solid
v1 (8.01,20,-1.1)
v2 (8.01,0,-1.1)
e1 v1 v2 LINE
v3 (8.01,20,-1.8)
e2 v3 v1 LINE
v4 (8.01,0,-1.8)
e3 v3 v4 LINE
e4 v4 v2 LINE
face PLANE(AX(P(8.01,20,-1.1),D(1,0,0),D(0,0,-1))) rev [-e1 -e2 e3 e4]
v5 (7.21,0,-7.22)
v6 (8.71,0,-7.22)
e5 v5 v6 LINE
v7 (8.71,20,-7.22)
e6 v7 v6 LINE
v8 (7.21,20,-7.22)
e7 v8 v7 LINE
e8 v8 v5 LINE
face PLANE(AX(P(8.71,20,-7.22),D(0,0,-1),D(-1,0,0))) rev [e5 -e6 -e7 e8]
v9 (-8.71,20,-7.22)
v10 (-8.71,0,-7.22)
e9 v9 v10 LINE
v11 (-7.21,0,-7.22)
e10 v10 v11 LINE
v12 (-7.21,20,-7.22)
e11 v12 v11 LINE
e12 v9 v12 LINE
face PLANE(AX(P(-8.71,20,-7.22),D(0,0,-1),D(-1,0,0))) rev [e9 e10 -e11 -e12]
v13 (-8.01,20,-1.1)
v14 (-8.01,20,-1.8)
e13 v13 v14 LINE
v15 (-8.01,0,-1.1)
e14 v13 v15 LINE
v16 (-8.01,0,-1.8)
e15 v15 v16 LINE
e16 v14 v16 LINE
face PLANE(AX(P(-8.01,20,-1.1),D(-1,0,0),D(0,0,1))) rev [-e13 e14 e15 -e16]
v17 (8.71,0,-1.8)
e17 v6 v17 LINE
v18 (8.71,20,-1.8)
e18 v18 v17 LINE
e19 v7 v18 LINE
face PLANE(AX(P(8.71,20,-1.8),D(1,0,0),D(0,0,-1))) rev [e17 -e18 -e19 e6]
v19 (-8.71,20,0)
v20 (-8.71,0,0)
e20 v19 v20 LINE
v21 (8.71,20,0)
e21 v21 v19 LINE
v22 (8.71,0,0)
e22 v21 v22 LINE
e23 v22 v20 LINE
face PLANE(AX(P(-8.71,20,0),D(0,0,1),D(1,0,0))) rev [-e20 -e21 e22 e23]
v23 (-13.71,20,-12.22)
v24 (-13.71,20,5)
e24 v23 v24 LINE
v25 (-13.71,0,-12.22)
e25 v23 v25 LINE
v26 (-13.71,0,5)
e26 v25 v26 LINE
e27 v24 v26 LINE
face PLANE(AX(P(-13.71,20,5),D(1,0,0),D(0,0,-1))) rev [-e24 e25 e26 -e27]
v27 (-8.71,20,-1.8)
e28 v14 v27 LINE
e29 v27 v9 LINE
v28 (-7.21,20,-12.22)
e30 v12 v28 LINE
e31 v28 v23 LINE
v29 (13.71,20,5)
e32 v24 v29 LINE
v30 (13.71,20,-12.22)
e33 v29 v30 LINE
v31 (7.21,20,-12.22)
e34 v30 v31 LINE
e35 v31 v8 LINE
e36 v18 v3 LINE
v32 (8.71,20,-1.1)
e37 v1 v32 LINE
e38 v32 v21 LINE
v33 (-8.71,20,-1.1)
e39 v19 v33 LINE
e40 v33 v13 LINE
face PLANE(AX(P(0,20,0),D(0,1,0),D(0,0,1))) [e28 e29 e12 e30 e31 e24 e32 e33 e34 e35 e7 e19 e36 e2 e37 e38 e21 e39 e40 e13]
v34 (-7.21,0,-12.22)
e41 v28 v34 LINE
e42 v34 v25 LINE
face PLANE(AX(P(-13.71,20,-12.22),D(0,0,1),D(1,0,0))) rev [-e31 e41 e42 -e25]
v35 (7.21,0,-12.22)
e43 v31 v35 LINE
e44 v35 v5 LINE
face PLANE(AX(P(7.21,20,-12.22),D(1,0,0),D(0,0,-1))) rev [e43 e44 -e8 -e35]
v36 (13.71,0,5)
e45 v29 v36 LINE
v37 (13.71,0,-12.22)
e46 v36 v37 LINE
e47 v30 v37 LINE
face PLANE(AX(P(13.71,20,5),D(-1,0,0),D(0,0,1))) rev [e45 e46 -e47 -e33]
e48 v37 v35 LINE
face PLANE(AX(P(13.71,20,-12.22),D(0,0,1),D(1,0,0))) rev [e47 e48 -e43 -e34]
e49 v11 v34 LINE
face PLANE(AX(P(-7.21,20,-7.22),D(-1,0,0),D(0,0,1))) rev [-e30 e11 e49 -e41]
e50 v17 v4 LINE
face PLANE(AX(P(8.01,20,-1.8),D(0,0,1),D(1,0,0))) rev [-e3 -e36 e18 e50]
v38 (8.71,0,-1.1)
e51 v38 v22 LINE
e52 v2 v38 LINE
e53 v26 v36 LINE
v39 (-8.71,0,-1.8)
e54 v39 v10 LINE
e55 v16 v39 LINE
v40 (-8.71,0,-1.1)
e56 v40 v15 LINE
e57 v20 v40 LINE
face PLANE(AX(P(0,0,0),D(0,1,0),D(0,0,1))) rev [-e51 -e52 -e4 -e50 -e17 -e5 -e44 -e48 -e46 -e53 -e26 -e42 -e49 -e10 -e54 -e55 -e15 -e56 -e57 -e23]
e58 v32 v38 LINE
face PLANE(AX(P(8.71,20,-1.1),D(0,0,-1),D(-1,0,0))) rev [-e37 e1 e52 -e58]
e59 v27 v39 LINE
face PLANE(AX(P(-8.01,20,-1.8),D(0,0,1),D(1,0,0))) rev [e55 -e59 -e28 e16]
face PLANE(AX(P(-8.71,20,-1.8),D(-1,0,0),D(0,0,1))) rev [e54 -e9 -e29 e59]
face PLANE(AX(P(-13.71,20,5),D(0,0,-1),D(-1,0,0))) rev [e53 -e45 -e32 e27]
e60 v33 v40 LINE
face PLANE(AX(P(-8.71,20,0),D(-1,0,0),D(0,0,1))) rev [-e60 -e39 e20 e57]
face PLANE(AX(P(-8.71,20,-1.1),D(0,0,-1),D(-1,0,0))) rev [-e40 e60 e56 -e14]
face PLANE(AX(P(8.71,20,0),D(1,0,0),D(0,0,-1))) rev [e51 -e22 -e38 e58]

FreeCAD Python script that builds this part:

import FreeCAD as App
import Part
import Sketcher
from FreeCAD import Vector
Q = App.Units.Quantity

doc = App.newDocument("Part")
params = doc.addObject("Spreadsheet::Sheet", "Params")
for row, (alias, value) in enumerate([
    ("sketch1_height", "5 mm"),
    ("sketch1_width", "0.7 mm"),
    ("sketch1_width2", "1.5 mm"),
    ("sketch1_width3", "6.5 mm"),
    ("sketch1_height2", "1.1 mm"),
    ("pad1_length", "20 mm"),
], start=1):
    params.set(f"A{row}", alias)
    params.set(f"B{row}", "=" + value)
    params.setAlias(f"B{row}", alias)

body = doc.addObject("PartDesign::Body", "Body")

# Sketch on XZ plane
sketch1 = doc.addObject("Sketcher::SketchObject", "Sketch")
body.addObject(sketch1)
sketch1.AttachmentSupport = (doc.XZ_Plane, [""])
sketch1.MapMode = "FlatFace"
sketch1.addGeometry(Part.LineSegment(Vector(8.7, 0, 0), Vector(-8.7, 0, 0)), False)
sketch1.addGeometry(Part.LineSegment(Vector(-8.7, 0, 0), Vector(-8.7, -1.1, 0)), False)
sketch1.addGeometry(Part.LineSegment(Vector(-8.7, -1.1, 0), Vector(-8, -1.1, 0)), False)
sketch1.addGeometry(Part.LineSegment(Vector(-8, -1.1, 0), Vector(-8, -1.8, 0)), False)
sketch1.addGeometry(Part.LineSegment(Vector(-8, -1.8, 0), Vector(-8.7, -1.8, 0)), False)
sketch1.addGeometry(Part.LineSegment(Vector(-8.7, -1.8, 0), Vector(-8.7, -7.2, 0)), False)
sketch1.addGeometry(Part.LineSegment(Vector(-8.7, -7.2, 0), Vector(-7.2, -7.2, 0)), False)
sketch1.addGeometry(Part.LineSegment(Vector(-7.2, -7.2, 0), Vector(-7.2, -12.2, 0)), False)
sketch1.addGeometry(Part.LineSegment(Vector(-7.2, -12.2, 0), Vector(-13.7, -12.2, 0)), False)
sketch1.addGeometry(Part.LineSegment(Vector(-13.7, -12.2, 0), Vector(-13.7, 5, 0)), False)
sketch1.addGeometry(Part.LineSegment(Vector(-13.7, 5, 0), Vector(13.7, 5, 0)), False)
sketch1.addGeometry(Part.LineSegment(Vector(13.7, 5, 0), Vector(13.7, -12.2, 0)), False)
sketch1.addGeometry(Part.LineSegment(Vector(13.7, -12.2, 0), Vector(7.2, -12.2, 0)), False)
sketch1.addGeometry(Part.LineSegment(Vector(7.2, -12.2, 0), Vector(7.2, -7.2, 0)), False)
sketch1.addGeometry(Part.LineSegment(Vector(7.2, -7.2, 0), Vector(8.7, -7.2, 0)), False)
sketch1.addGeometry(Part.LineSegment(Vector(8.7, -7.2, 0), Vector(8.7, -1.8, 0)), False)
sketch1.addGeometry(Part.LineSegment(Vector(8.7, -1.8, 0), Vector(8, -1.8, 0)), False)
sketch1.addGeometry(Part.LineSegment(Vector(8, -1.8, 0), Vector(8, -1.1, 0)), False)
sketch1.addGeometry(Part.LineSegment(Vector(8, -1.1, 0), Vector(8.7, -1.1, 0)), False)
sketch1.addGeometry(Part.LineSegment(Vector(8.7, -1.1, 0), Vector(8.7, 0, 0)), False)
sketch1.addConstraint(Sketcher.Constraint("Coincident", 0, 2, 1, 1))
sketch1.addConstraint(Sketcher.Constraint("Coincident", 1, 2, 2, 1))
sketch1.addConstraint(Sketcher.Constraint("Coincident", 2, 2, 3, 1))
sketch1.addConstraint(Sketcher.Constraint("Coincident", 3, 2, 4, 1))
sketch1.addConstraint(Sketcher.Constraint("Coincident", 4, 2, 5, 1))
sketch1.addConstraint(Sketcher.Constraint("Coincident", 5, 2, 6, 1))
sketch1.addConstraint(Sketcher.Constraint("Coincident", 6, 2, 7, 1))
sketch1.addConstraint(Sketcher.Constraint("Coincident", 7, 2, 8, 1))
sketch1.addConstraint(Sketcher.Constraint("Coincident", 8, 2, 9, 1))
sketch1.addConstraint(Sketcher.Constraint("Coincident", 9, 2, 10, 1))
sketch1.addConstraint(Sketcher.Constraint("Coincident", 10, 2, 11, 1))
sketch1.addConstraint(Sketcher.Constraint("Coincident", 11, 2, 12, 1))
sketch1.addConstraint(Sketcher.Constraint("Coincident", 12, 2, 13, 1))
sketch1.addConstraint(Sketcher.Constraint("Coincident", 13, 2, 14, 1))
sketch1.addConstraint(Sketcher.Constraint("Coincident", 14, 2, 15, 1))
sketch1.addConstraint(Sketcher.Constraint("Coincident", 15, 2, 16, 1))
sketch1.addConstraint(Sketcher.Constraint("Coincident", 16, 2, 17, 1))
sketch1.addConstraint(Sketcher.Constraint("Coincident", 17, 2, 18, 1))
sketch1.addConstraint(Sketcher.Constraint("Coincident", 18, 2, 19, 1))
sketch1.addConstraint(Sketcher.Constraint("Coincident", 19, 2, 0, 1))
sketch1.addConstraint(Sketcher.Constraint("Horizontal", 0))
sketch1.addConstraint(Sketcher.Constraint("Vertical", 1))
sketch1.addConstraint(Sketcher.Constraint("Horizontal", 2))
sketch1.addConstraint(Sketcher.Constraint("Vertical", 3))
sketch1.addConstraint(Sketcher.Constraint("Horizontal", 4))
sketch1.addConstraint(Sketcher.Constraint("Vertical", 5))
sketch1.addConstraint(Sketcher.Constraint("Horizontal", 6))
sketch1.addConstraint(Sketcher.Constraint("Vertical", 7))
sketch1.addConstraint(Sketcher.Constraint("Horizontal", 8))
sketch1.addConstraint(Sketcher.Constraint("Vertical", 9))
sketch1.addConstraint(Sketcher.Constraint("Horizontal", 10))
sketch1.addConstraint(Sketcher.Constraint("Vertical", 11))
sketch1.addConstraint(Sketcher.Constraint("Horizontal", 12))
sketch1.addConstraint(Sketcher.Constraint("Vertical", 13))
sketch1.addConstraint(Sketcher.Constraint("Horizontal", 14))
sketch1.addConstraint(Sketcher.Constraint("Vertical", 15))
sketch1.addConstraint(Sketcher.Constraint("Horizontal", 16))
sketch1.addConstraint(Sketcher.Constraint("Vertical", 17))
sketch1.addConstraint(Sketcher.Constraint("Horizontal", 18))
sketch1.addConstraint(Sketcher.Constraint("Vertical", 19))
sketch1.addConstraint(Sketcher.Constraint("Symmetric", 0, 2, 19, 2, -1, 1))
sketch1.addConstraint(Sketcher.Constraint("Symmetric", 8, 2, 11, 2, -2))
sketch1.addConstraint(Sketcher.Constraint("Symmetric", 6, 2, 13, 2, -2))
sketch1.addConstraint(Sketcher.Constraint("Symmetric", 4, 2, 15, 2, -2))
sketch1.addConstraint(Sketcher.Constraint("Symmetric", 2, 2, 17, 2, -2))
sketch1.addConstraint(Sketcher.Constraint("Vertical", 1, 2, 4, 2))
sketch1.addConstraint(Sketcher.Constraint("Equal", 18, 3))
sketch1.addConstraint(Sketcher.Constraint("DistanceY", 7, 2, 7, 1, Q("5 mm")))
sketch1.addConstraint(Sketcher.Constraint("DistanceX", 2, 1, 2, 2, Q("0.7 mm")))
sketch1.addConstraint(Sketcher.Constraint("DistanceX", 6, 1, 6, 2, Q("1.5 mm")))
sketch1.addConstraint(Sketcher.Constraint("DistanceX", 8, 2, 8, 1, Q("6.5 mm")))
sketch1.addConstraint(Sketcher.Constraint("DistanceY", 1, 2, 1, 1, Q("1.1 mm")))
sketch1.addConstraint(Sketcher.Constraint("DistanceY", -1, 1, 9, 2, Q("5 mm")))
sketch1.addConstraint(Sketcher.Constraint("DistanceX", 0, 2, 0, 1, Q("17.42 mm")))
sketch1.addConstraint(Sketcher.Constraint("DistanceY", 5, 2, 5, 1, Q("5.42 mm")))
sketch1.setExpression("Constraints[47]", "Params.sketch1_height")
sketch1.setExpression("Constraints[48]", "Params.sketch1_width")
sketch1.setExpression("Constraints[49]", "Params.sketch1_width2")
sketch1.setExpression("Constraints[50]", "Params.sketch1_width3")
sketch1.setExpression("Constraints[51]", "Params.sketch1_height2")
pad1 = doc.addObject("PartDesign::Pad", "Pad")
body.addObject(pad1)
pad1.Profile = sketch1
pad1.setExpression("Length", "Params.pad1_length")
pad1.Reversed = True

doc.recompute()
